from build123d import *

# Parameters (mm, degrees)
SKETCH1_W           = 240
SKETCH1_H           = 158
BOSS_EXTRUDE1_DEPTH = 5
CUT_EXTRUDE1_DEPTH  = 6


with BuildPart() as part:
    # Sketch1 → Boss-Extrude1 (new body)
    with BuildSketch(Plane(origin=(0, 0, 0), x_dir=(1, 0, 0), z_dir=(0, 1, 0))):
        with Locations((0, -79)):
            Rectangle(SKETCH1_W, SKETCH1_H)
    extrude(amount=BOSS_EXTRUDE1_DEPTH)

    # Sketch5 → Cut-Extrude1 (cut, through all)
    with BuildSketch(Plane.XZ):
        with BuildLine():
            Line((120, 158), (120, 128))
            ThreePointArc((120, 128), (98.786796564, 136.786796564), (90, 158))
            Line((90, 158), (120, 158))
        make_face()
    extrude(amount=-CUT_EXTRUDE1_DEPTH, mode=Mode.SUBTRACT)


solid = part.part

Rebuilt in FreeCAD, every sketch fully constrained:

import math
import FreeCAD as App
import Part
import Sketcher

V = App.Vector
Q = App.Units.Quantity


def add_polygon(sketch, points):
    """Adds a closed chain of lines whose ends are joined by coincident constraints."""
    first, n = sketch.GeometryCount, len(points)
    for a, b in zip(points, points[1:] + points[:1]):
        sketch.addGeometry(Part.LineSegment(App.Vector(*a, 0), App.Vector(*b, 0)), False)
    for i in range(n):
        sketch.addConstraint(Sketcher.Constraint("Coincident", first + i, 2, first + (i + 1) % n, 1))

doc = App.newDocument("Part")
body = doc.addObject("PartDesign::Body", "Body")

# Sketch on XZ plane
sketch1 = body.newObject("Sketcher::SketchObject", "Sketch")
sketch1.AttachmentSupport = (doc.getObject("XZ_Plane"), [""])
sketch1.MapMode = "FlatFace"
add_polygon(sketch1, [(-120, 0), (-120, 158), (120, 158), (120, 0)])  # lines 0-3
sketch1.addConstraint(Sketcher.Constraint("Vertical", 0))
sketch1.addConstraint(Sketcher.Constraint("Horizontal", 1))
sketch1.addConstraint(Sketcher.Constraint("Vertical", 2))
sketch1.addConstraint(Sketcher.Constraint("Horizontal", 3))
sketch1.addConstraint(Sketcher.Constraint("Symmetric", 2, 2, 3, 2, -1, 1))
sketch1.addConstraint(Sketcher.Constraint("DistanceX", 1, 1, 1, 2, Q("240 mm")))
sketch1.addConstraint(Sketcher.Constraint("DistanceY", 0, 1, 0, 2, Q("158 mm")))
pad1 = body.newObject("PartDesign::Pad", "Pad")
pad1.Profile = sketch1
pad1.Length = 5
pad1.Reversed = True

# Sketch on XZ plane
sketch2 = body.newObject("Sketcher::SketchObject", "Sketch001")
sketch2.AttachmentSupport = (doc.getObject("XZ_Plane"), [""])
sketch2.MapMode = "FlatFace"
sketch2.addGeometry(Part.LineSegment(V(120, 128, 0), V(120, 158, 0)), False)
sketch2.addGeometry(Part.LineSegment(V(120, 158, 0), V(90, 158, 0)), False)
sketch2.addGeometry(Part.ArcOfCircle(Part.Circle(V(120, 158, 0), V(0, 0, 1), 30), math.radians(180), math.radians(270)), False)
sketch2.addConstraint(Sketcher.Constraint("Coincident", 0, 2, 1, 1))
sketch2.addConstraint(Sketcher.Constraint("Coincident", 1, 2, 2, 1))
sketch2.addConstraint(Sketcher.Constraint("Coincident", 2, 2, 0, 1))
sketch2.addConstraint(Sketcher.Constraint("Vertical", 0))
sketch2.addConstraint(Sketcher.Constraint("Horizontal", 1))
sketch2.addConstraint(Sketcher.Constraint("Coincident", 0, 2, 2, 3))
sketch2.addConstraint(Sketcher.Constraint("Radius", 2, Q("30 mm")))
sketch2.addConstraint(Sketcher.Constraint("DistanceX", -1, 1, 2, 3, Q("120 mm")))
sketch2.addConstraint(Sketcher.Constraint("DistanceY", -1, 1, 2, 3, Q("158 mm")))
pocket1 = body.newObject("PartDesign::Pocket", "Pocket")
pocket1.Profile = sketch2
pocket1.Type = "ThroughAll"

doc.recompute()
